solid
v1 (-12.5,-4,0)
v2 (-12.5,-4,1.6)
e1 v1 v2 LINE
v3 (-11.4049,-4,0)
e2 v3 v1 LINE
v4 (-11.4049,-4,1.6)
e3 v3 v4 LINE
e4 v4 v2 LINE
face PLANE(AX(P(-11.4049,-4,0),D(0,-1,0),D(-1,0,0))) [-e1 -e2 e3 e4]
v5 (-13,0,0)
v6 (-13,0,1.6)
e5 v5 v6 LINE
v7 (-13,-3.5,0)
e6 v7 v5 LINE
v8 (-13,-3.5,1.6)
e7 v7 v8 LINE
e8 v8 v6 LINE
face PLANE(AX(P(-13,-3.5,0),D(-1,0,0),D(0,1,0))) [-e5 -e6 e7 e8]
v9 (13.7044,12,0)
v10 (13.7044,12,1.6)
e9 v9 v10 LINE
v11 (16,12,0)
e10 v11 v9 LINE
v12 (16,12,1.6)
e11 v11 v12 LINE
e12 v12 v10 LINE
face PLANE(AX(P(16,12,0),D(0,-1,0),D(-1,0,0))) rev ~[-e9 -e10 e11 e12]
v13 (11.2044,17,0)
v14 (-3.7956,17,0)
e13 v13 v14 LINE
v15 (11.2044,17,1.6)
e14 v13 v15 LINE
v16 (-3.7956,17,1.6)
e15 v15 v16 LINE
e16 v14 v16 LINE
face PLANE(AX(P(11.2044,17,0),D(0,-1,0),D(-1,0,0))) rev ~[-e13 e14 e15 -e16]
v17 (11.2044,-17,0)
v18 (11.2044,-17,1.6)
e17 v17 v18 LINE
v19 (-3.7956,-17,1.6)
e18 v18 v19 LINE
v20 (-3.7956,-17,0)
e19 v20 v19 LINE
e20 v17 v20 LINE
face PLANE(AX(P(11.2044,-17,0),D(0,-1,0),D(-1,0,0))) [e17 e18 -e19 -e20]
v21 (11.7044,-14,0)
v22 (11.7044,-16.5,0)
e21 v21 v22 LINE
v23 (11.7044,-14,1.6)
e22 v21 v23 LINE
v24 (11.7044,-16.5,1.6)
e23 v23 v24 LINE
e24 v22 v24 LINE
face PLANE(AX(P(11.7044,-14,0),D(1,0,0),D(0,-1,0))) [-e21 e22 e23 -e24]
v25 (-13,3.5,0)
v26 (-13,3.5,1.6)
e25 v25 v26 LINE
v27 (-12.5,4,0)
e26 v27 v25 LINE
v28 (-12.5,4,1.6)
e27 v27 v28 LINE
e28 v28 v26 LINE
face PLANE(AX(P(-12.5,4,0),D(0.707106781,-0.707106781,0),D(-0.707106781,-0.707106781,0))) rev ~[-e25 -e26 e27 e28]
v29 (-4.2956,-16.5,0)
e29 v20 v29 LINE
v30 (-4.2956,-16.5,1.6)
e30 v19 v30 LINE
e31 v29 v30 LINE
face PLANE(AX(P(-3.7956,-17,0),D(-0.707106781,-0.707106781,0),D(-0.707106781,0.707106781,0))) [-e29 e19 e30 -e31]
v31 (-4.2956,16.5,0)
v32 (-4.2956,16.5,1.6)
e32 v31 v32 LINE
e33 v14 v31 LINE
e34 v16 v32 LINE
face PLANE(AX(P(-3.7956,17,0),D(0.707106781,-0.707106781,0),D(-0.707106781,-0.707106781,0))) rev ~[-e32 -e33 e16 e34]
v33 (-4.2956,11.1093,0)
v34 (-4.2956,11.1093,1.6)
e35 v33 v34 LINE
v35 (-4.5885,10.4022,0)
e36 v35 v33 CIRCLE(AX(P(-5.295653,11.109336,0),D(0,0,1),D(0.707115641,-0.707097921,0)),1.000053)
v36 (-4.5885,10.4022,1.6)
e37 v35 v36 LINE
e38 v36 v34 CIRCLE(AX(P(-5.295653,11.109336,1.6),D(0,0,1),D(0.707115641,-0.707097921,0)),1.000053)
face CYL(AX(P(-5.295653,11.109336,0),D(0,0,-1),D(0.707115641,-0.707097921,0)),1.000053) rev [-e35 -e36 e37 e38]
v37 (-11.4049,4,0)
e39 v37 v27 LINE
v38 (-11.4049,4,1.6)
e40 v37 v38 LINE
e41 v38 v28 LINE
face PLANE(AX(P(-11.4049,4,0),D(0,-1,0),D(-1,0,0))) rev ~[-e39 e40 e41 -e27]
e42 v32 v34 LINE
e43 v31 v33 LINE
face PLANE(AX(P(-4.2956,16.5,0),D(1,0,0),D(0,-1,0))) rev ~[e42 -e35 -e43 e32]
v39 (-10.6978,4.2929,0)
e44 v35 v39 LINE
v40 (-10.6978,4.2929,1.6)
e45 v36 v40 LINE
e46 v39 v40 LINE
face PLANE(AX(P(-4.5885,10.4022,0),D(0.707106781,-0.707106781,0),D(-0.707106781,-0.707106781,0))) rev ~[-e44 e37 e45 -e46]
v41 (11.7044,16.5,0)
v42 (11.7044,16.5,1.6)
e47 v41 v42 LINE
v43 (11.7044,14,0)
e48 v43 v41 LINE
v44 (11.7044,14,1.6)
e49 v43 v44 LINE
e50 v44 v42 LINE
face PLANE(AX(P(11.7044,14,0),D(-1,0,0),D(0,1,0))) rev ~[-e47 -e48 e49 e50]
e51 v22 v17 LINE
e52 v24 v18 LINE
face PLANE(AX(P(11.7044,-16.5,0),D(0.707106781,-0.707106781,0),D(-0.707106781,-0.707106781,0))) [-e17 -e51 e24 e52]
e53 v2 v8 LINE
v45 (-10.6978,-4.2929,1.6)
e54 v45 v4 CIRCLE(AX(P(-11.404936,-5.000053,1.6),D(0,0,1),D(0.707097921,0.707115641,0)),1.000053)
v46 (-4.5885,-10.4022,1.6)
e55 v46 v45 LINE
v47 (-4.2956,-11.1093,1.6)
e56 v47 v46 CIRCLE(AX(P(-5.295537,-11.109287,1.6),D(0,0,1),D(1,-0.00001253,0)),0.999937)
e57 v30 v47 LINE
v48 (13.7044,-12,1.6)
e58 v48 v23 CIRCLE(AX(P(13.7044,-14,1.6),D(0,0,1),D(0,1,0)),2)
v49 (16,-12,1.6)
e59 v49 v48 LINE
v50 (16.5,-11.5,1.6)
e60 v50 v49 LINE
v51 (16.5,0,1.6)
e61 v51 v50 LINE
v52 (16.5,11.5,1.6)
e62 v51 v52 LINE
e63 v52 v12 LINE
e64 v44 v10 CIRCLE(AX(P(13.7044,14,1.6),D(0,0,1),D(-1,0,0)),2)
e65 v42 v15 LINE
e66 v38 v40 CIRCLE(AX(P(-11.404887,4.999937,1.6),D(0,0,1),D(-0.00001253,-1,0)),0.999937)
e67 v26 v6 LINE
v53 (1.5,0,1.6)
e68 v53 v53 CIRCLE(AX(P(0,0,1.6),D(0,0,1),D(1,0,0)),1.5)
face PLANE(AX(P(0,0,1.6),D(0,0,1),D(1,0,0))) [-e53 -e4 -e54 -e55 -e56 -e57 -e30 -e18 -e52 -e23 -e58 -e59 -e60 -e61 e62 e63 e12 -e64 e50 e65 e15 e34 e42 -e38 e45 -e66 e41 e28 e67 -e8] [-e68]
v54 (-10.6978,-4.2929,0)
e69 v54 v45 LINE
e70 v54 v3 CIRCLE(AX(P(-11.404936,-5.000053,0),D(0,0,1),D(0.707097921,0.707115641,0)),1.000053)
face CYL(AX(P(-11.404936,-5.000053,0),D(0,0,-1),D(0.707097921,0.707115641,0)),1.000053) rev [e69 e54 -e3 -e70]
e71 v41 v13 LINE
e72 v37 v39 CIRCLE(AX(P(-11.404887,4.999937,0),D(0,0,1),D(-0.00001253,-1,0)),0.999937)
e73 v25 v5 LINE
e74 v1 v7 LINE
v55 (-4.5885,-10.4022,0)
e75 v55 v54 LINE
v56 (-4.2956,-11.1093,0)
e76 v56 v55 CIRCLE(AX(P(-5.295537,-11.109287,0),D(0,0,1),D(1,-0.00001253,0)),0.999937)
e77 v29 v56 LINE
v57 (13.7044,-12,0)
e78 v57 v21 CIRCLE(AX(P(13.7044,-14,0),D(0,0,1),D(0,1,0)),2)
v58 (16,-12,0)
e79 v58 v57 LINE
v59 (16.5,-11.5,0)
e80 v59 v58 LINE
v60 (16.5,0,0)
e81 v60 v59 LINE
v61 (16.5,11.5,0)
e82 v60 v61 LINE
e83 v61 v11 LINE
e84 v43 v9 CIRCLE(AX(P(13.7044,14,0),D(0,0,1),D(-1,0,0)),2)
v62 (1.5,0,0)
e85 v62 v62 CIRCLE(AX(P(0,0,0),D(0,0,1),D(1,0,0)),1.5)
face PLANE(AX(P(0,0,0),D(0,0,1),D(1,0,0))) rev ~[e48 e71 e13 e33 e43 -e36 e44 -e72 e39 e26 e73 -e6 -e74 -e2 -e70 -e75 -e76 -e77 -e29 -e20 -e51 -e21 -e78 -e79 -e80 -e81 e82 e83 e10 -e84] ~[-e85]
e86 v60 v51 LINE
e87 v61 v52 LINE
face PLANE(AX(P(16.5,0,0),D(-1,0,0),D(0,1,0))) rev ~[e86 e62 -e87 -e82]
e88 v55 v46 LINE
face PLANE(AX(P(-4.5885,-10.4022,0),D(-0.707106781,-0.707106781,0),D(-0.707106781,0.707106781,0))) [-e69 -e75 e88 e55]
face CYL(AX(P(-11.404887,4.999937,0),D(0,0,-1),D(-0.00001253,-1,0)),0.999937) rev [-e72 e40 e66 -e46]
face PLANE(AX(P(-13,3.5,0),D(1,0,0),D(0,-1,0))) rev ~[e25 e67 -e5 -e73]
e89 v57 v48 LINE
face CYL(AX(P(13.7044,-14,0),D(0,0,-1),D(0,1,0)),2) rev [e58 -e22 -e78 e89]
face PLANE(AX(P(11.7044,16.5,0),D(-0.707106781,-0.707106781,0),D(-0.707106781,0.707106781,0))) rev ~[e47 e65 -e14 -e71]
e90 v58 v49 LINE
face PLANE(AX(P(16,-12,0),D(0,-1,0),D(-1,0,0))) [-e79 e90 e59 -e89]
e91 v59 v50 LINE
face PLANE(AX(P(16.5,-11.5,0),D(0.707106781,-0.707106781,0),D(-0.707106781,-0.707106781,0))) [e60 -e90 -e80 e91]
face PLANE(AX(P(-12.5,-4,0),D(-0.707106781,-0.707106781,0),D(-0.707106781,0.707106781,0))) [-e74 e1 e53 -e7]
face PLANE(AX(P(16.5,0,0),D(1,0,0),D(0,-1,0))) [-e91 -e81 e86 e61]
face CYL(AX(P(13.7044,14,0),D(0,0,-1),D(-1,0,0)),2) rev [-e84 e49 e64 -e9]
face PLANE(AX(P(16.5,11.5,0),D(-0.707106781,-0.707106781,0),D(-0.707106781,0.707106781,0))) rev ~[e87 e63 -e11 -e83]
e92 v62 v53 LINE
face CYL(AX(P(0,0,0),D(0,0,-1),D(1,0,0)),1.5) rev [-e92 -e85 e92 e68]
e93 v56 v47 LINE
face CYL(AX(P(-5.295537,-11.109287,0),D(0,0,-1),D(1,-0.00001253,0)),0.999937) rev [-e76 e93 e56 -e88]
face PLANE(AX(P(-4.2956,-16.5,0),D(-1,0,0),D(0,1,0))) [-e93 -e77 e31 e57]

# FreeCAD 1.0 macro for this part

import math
import FreeCAD as App
import Part
import Sketcher
Q = App.Units.Quantity

doc = App.newDocument("Part")
body = doc.addObject("PartDesign::Body", "Body")

sketch1 = body.newObject("Sketcher::SketchObject", "Sketch")
sketch1.AttachmentSupport = (doc.getObject("XY_Plane"), [""])
sketch1.MapMode = "FlatFace"
sketch1.addGeometry(Part.LineSegment(App.Vector(16.5, -11.5, 0), App.Vector(16.5, 11.5, 0)), False)
sketch1.addGeometry(Part.LineSegment(App.Vector(16.5, 11.5, 0), App.Vector(16, 12, 0)), False)
sketch1.addGeometry(Part.LineSegment(App.Vector(16, 12, 0), App.Vector(13.7, 12, 0)), False)
sketch1.addGeometry(Part.ArcOfCircle(Part.Circle(App.Vector(13.7, 14, 0), App.Vector(0, 0, 1), 2), math.radians(180), math.radians(270)), False)
sketch1.addGeometry(Part.LineSegment(App.Vector(11.7, 14, 0), App.Vector(11.7, 16.5, 0)), False)
sketch1.addGeometry(Part.LineSegment(App.Vector(11.7, 16.5, 0), App.Vector(11.2, 17, 0)), False)
sketch1.addGeometry(Part.LineSegment(App.Vector(11.2, 17, 0), App.Vector(-3.8, 17, 0)), False)
sketch1.addGeometry(Part.LineSegment(App.Vector(-3.8, 17, 0), App.Vector(-4.3, 16.5, 0)), False)
sketch1.addGeometry(Part.LineSegment(App.Vector(-4.3, 16.5, 0), App.Vector(-4.3, 11.1, 0)), False)
sketch1.addGeometry(Part.ArcOfCircle(Part.Circle(App.Vector(-5.3, 11.1, 0), App.Vector(0, 0, 1), 1), math.radians(-45), math.radians(0)), False)
sketch1.addGeometry(Part.LineSegment(App.Vector(-4.6, 10.4, 0), App.Vector(-10.7, 4.3, 0)), False)
sketch1.addGeometry(Part.ArcOfCircle(Part.Circle(App.Vector(-11.4, 5, 0), App.Vector(0, 0, 1), 1), math.radians(-90), math.radians(-45)), False)
sketch1.addGeometry(Part.LineSegment(App.Vector(-11.4, 4, 0), App.Vector(-12.5, 4, 0)), False)
sketch1.addGeometry(Part.LineSegment(App.Vector(-12.5, 4, 0), App.Vector(-13, 3.5, 0)), False)
sketch1.addGeometry(Part.LineSegment(App.Vector(-13, 3.5, 0), App.Vector(-13, -3.5, 0)), False)
sketch1.addGeometry(Part.LineSegment(App.Vector(-13, -3.5, 0), App.Vector(-12.5, -4, 0)), False)
sketch1.addGeometry(Part.LineSegment(App.Vector(-12.5, -4, 0), App.Vector(-11.4, -4, 0)), False)
sketch1.addGeometry(Part.ArcOfCircle(Part.Circle(App.Vector(-11.4, -5, 0), App.Vector(0, 0, 1), 1), math.radians(45), math.radians(90)), False)
sketch1.addGeometry(Part.LineSegment(App.Vector(-10.7, -4.3, 0), App.Vector(-4.6, -10.4, 0)), False)
sketch1.addGeometry(Part.ArcOfCircle(Part.Circle(App.Vector(-5.3, -11.1, 0), App.Vector(0, 0, 1), 1), math.radians(0), math.radians(45)), False)
sketch1.addGeometry(Part.LineSegment(App.Vector(-4.3, -11.1, 0), App.Vector(-4.3, -16.5, 0)), False)
sketch1.addGeometry(Part.LineSegment(App.Vector(-4.3, -16.5, 0), App.Vector(-3.8, -17, 0)), False)
sketch1.addGeometry(Part.LineSegment(App.Vector(-3.8, -17, 0), App.Vector(11.2, -17, 0)), False)
sketch1.addGeometry(Part.LineSegment(App.Vector(11.2, -17, 0), App.Vector(11.7, -16.5, 0)), False)
sketch1.addGeometry(Part.LineSegment(App.Vector(11.7, -16.5, 0), App.Vector(11.7, -14, 0)), False)
sketch1.addGeometry(Part.ArcOfCircle(Part.Circle(App.Vector(13.7, -14, 0), App.Vector(0, 0, 1), 2), math.radians(90), math.radians(180)), False)
sketch1.addGeometry(Part.LineSegment(App.Vector(13.7, -12, 0), App.Vector(16, -12, 0)), False)
sketch1.addGeometry(Part.LineSegment(App.Vector(16, -12, 0), App.Vector(16.5, -11.5, 0)), False)
sketch1.addGeometry(Part.Circle(App.Vector(0, 0, 0), App.Vector(0, 0, 1), 1.5), False)
sketch1.addConstraint(Sketcher.Constraint("Coincident", 0, 2, 1, 1))
sketch1.addConstraint(Sketcher.Constraint("Coincident", 1, 2, 2, 1))
sketch1.addConstraint(Sketcher.Constraint("Tangent", 2, 2, 3, 2))
sketch1.addConstraint(Sketcher.Constraint("Tangent", 3, 1, 4, 1))
sketch1.addConstraint(Sketcher.Constraint("Coincident", 4, 2, 5, 1))
sketch1.addConstraint(Sketcher.Constraint("Coincident", 5, 2, 6, 1))
sketch1.addConstraint(Sketcher.Constraint("Coincident", 6, 2, 7, 1))
sketch1.addConstraint(Sketcher.Constraint("Coincident", 7, 2, 8, 1))
sketch1.addConstraint(Sketcher.Constraint("Tangent", 8, 2, 9, 2))
sketch1.addConstraint(Sketcher.Constraint("Tangent", 9, 1, 10, 1))
sketch1.addConstraint(Sketcher.Constraint("Tangent", 10, 2, 11, 2))
sketch1.addConstraint(Sketcher.Constraint("Tangent", 11, 1, 12, 1))
sketch1.addConstraint(Sketcher.Constraint("Coincident", 12, 2, 13, 1))
sketch1.addConstraint(Sketcher.Constraint("Coincident", 13, 2, 14, 1))
sketch1.addConstraint(Sketcher.Constraint("Coincident", 14, 2, 15, 1))
sketch1.addConstraint(Sketcher.Constraint("Coincident", 15, 2, 16, 1))
sketch1.addConstraint(Sketcher.Constraint("Tangent", 16, 2, 17, 2))
sketch1.addConstraint(Sketcher.Constraint("Tangent", 17, 1, 18, 1))
sketch1.addConstraint(Sketcher.Constraint("Tangent", 18, 2, 19, 2))
sketch1.addConstraint(Sketcher.Constraint("Tangent", 19, 1, 20, 1))
sketch1.addConstraint(Sketcher.Constraint("Coincident", 20, 2, 21, 1))
sketch1.addConstraint(Sketcher.Constraint("Coincident", 21, 2, 22, 1))
sketch1.addConstraint(Sketcher.Constraint("Coincident", 22, 2, 23, 1))
sketch1.addConstraint(Sketcher.Constraint("Coincident", 23, 2, 24, 1))
sketch1.addConstraint(Sketcher.Constraint("Tangent", 24, 2, 25, 2))
sketch1.addConstraint(Sketcher.Constraint("Tangent", 25, 1, 26, 1))
sketch1.addConstraint(Sketcher.Constraint("Coincident", 26, 2, 27, 1))
sketch1.addConstraint(Sketcher.Constraint("Coincident", 27, 2, 0, 1))
sketch1.addConstraint(Sketcher.Constraint("Vertical", 0))
sketch1.addConstraint(Sketcher.Constraint("Horizontal", 2))
sketch1.addConstraint(Sketcher.Constraint("Vertical", 4))
sketch1.addConstraint(Sketcher.Constraint("Horizontal", 6))
sketch1.addConstraint(Sketcher.Constraint("Vertical", 8))
sketch1.addConstraint(Sketcher.Constraint("Horizontal", 12))
sketch1.addConstraint(Sketcher.Constraint("Vertical", 14))
sketch1.addConstraint(Sketcher.Constraint("Horizontal", 16))
sketch1.addConstraint(Sketcher.Constraint("Vertical", 20))
sketch1.addConstraint(Sketcher.Constraint("Horizontal", 22))
sketch1.addConstraint(Sketcher.Constraint("Vertical", 24))
sketch1.addConstraint(Sketcher.Constraint("Horizontal", 26))
sketch1.addConstraint(Sketcher.Constraint("Coincident", 28, 3, -1, 1))
sketch1.addConstraint(Sketcher.Constraint("Equal", 9, 11))
sketch1.addConstraint(Sketcher.Constraint("Equal", 11, 17))
sketch1.addConstraint(Sketcher.Constraint("Equal", 17, 19))
sketch1.addConstraint(Sketcher.Constraint("Equal", 3, 25))
sketch1.addConstraint(Sketcher.Constraint("Symmetric", 11, 3, 17, 3, -1))
sketch1.addConstraint(Sketcher.Constraint("Symmetric", 9, 3, 19, 3, -1))
sketch1.addConstraint(Sketcher.Constraint("Symmetric", 3, 3, 25, 3, -1))
sketch1.addConstraint(Sketcher.Constraint("Symmetric", 6, 2, 21, 2, -1))
sketch1.addConstraint(Sketcher.Constraint("Parallel", 1, 5))
sketch1.addConstraint(Sketcher.Constraint("Perpendicular", 5, 7))
sketch1.addConstraint(Sketcher.Constraint("Parallel", 7, 10))
sketch1.addConstraint(Sketcher.Constraint("Parallel", 10, 13))
sketch1.addConstraint(Sketcher.Constraint("Perpendicular", 13, 15))
sketch1.addConstraint(Sketcher.Constraint("Parallel", 15, 18))
sketch1.addConstraint(Sketcher.Constraint("Parallel", 18, 21))
sketch1.addConstraint(Sketcher.Constraint("Perpendicular", 21, 23))
sketch1.addConstraint(Sketcher.Constraint("Parallel", 23, 27))
sketch1.addConstraint(Sketcher.Constraint("Horizontal", 4, 2, 7, 2))
sketch1.addConstraint(Sketcher.Constraint("Horizontal", 20, 2, 23, 2))
sketch1.addConstraint(Sketcher.Constraint("Vertical", 12, 2, 15, 2))
sketch1.addConstraint(Sketcher.Constraint("Vertical", 1, 2, 26, 2))
sketch1.addConstraint(Sketcher.Constraint("Equal", 1, 5))
sketch1.addConstraint(Sketcher.Constraint("Equal", 7, 13))
sketch1.addConstraint(Sketcher.Constraint("Diameter", 28, Q("3 mm")))
sketch1.addConstraint(Sketcher.Constraint("Radius", 3, Q("2 mm")))
sketch1.addConstraint(Sketcher.Constraint("Radius", 9, Q("1 mm")))
sketch1.addConstraint(Sketcher.Constraint("DistanceY", -1, 1, 1, 2, Q("12 mm")))
sketch1.addConstraint(Sketcher.Constraint("DistanceY", -1, 1, 5, 2, Q("17 mm")))
sketch1.addConstraint(Sketcher.Constraint("DistanceY", -1, 1, 11, 1, Q("4 mm")))
sketch1.addConstraint(Sketcher.Constraint("DistanceX", 9, 3, 3, 1, Q("17 mm")))
sketch1.addConstraint(Sketcher.Constraint("DistanceX", -1, 1, 0, 2, Q("16.5 mm")))
sketch1.addConstraint(Sketcher.Constraint("DistanceY", -1, 1, 4, 2, Q("16.5 mm")))
sketch1.addConstraint(Sketcher.Constraint("DistanceX", 13, 2, -1, 1, Q("13 mm")))
sketch1.addConstraint(Sketcher.Constraint("DistanceX", 12, 2, 12, 1, Q("1.095 mm")))
sketch1.addConstraint(Sketcher.Constraint("DistanceX", 2, 2, 2, 1, Q("2.2956 mm")))
pad1 = body.newObject("PartDesign::Pad", "Pad")
pad1.Profile = sketch1
pad1.Length = 1.6

doc.recompute()
